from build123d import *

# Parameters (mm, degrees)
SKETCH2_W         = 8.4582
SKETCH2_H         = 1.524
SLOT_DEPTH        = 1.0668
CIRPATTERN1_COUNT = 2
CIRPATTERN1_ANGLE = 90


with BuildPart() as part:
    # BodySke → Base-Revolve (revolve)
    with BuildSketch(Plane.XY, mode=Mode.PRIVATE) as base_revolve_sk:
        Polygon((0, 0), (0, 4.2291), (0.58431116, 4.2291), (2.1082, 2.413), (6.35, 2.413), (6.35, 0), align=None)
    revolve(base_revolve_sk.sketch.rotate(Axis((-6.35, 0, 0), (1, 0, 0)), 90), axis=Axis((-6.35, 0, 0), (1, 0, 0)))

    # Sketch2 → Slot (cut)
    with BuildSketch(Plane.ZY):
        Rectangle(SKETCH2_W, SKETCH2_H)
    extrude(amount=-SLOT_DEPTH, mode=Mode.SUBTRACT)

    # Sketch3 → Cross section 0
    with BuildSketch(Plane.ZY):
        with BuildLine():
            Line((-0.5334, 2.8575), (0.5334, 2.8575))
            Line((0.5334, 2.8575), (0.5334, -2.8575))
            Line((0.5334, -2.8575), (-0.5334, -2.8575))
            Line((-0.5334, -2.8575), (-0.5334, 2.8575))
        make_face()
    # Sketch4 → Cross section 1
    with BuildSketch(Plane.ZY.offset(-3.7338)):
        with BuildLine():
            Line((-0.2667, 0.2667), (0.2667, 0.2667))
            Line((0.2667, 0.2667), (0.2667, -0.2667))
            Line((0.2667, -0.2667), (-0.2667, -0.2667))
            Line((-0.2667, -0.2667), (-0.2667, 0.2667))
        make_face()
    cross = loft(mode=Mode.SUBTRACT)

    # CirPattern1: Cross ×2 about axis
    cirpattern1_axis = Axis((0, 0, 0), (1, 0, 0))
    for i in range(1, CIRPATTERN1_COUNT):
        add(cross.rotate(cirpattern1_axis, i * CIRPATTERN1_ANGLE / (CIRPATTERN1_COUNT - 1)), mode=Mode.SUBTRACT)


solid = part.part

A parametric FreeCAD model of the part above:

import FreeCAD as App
import Part
import Sketcher
from FreeCAD import Vector
Q = App.Units.Quantity

doc = App.newDocument("Part")
body = doc.addObject("PartDesign::Body", "Body")

sketch1 = body.newObject("Sketcher::SketchObject", "Sketch")
sketch1.AttachmentSupport = (doc.getObject("XY_Plane"), [""])
sketch1.MapMode = "FlatFace"
sketch1.addGeometry(Part.LineSegment(Vector(0, 4.2, 0), Vector(0, 0, 0)), False)
sketch1.addGeometry(Part.LineSegment(Vector(0, 0, 0), Vector(6.3, 0, 0)), False)
sketch1.addGeometry(Part.LineSegment(Vector(6.3, 0, 0), Vector(6.3, 2.4, 0)), False)
sketch1.addGeometry(Part.LineSegment(Vector(6.3, 2.4, 0), Vector(2.1, 2.4, 0)), False)
sketch1.addGeometry(Part.LineSegment(Vector(2.1, 2.4, 0), Vector(0.6, 4.2, 0)), False)
sketch1.addGeometry(Part.LineSegment(Vector(0.6, 4.2, 0), Vector(0, 4.2, 0)), False)
sketch1.addConstraint(Sketcher.Constraint("Coincident", 0, 2, 1, 1))
sketch1.addConstraint(Sketcher.Constraint("Coincident", 1, 2, 2, 1))
sketch1.addConstraint(Sketcher.Constraint("Coincident", 2, 2, 3, 1))
sketch1.addConstraint(Sketcher.Constraint("Coincident", 3, 2, 4, 1))
sketch1.addConstraint(Sketcher.Constraint("Coincident", 4, 2, 5, 1))
sketch1.addConstraint(Sketcher.Constraint("Coincident", 5, 2, 0, 1))
sketch1.addConstraint(Sketcher.Constraint("Vertical", 0))
sketch1.addConstraint(Sketcher.Constraint("Horizontal", 1))
sketch1.addConstraint(Sketcher.Constraint("Vertical", 2))
sketch1.addConstraint(Sketcher.Constraint("Horizontal", 3))
sketch1.addConstraint(Sketcher.Constraint("Horizontal", 5))
sketch1.addConstraint(Sketcher.Constraint("Coincident", 0, 2, -1, 1))
sketch1.addConstraint(Sketcher.Constraint("Angle", 4, Q("130 deg")))
sketch1.addConstraint(Sketcher.Constraint("DistanceX", 1, 1, 1, 2, Q("0.25 in")))
sketch1.addConstraint(Sketcher.Constraint("DistanceX", 3, 2, 3, 1, Q("0.167 in")))
sketch1.addConstraint(Sketcher.Constraint("DistanceY", 2, 1, 2, 2, Q("0.095 in")))
sketch1.addConstraint(Sketcher.Constraint("DistanceY", 0, 2, 0, 1, Q("0.1665 in")))
revolution = body.newObject("PartDesign::Revolution", "Revolution")
revolution.Profile = sketch1
revolution.ReferenceAxis = (sketch1, ["H_Axis"])
revolution.Angle = 360

sketch2 = body.newObject("Sketcher::SketchObject", "Sketch001")
sketch2.AttachmentSupport = (doc.getObject("YZ_Plane"), [""])
sketch2.MapMode = "FlatFace"
sketch2.addGeometry(Part.LineSegment(Vector(0.8, -4.2, 0), Vector(-0.8, -4.2, 0)), False)
sketch2.addGeometry(Part.LineSegment(Vector(-0.8, -4.2, 0), Vector(-0.8, 4.2, 0)), False)
sketch2.addGeometry(Part.LineSegment(Vector(-0.8, 4.2, 0), Vector(0.8, 4.2, 0)), False)
sketch2.addGeometry(Part.LineSegment(Vector(0.8, 4.2, 0), Vector(0.8, -4.2, 0)), False)
sketch2.addConstraint(Sketcher.Constraint("Coincident", 0, 2, 1, 1))
sketch2.addConstraint(Sketcher.Constraint("Coincident", 1, 2, 2, 1))
sketch2.addConstraint(Sketcher.Constraint("Coincident", 2, 2, 3, 1))
sketch2.addConstraint(Sketcher.Constraint("Coincident", 3, 2, 0, 1))
sketch2.addConstraint(Sketcher.Constraint("Horizontal", 0))
sketch2.addConstraint(Sketcher.Constraint("Vertical", 1))
sketch2.addConstraint(Sketcher.Constraint("Horizontal", 2))
sketch2.addConstraint(Sketcher.Constraint("Vertical", 3))
sketch2.addConstraint(Sketcher.Constraint("Symmetric", 0, 2, 2, 2, -1, 1))
sketch2.addConstraint(Sketcher.Constraint("DistanceX", 0, 2, 0, 1, Q("0.06 in")))
sketch2.addConstraint(Sketcher.Constraint("DistanceY", 1, 1, 1, 2, Q("0.333 in")))
pocket1 = body.newObject("PartDesign::Pocket", "Pocket")
pocket1.Profile = sketch2
pocket1.Length = Q("0.042 in")
pocket1.Reversed = True

sketch3 = body.newObject("Sketcher::SketchObject", "Sketch002")
sketch3.AttachmentSupport = (doc.getObject("YZ_Plane"), [""])
sketch3.MapMode = "FlatFace"
sketch3.addGeometry(Part.LineSegment(Vector(2.9, 0.5, 0), Vector(2.9, -0.5, 0)), False)
sketch3.addGeometry(Part.LineSegment(Vector(2.9, -0.5, 0), Vector(-2.9, -0.5, 0)), False)
sketch3.addGeometry(Part.LineSegment(Vector(-2.9, -0.5, 0), Vector(-2.9, 0.5, 0)), False)
sketch3.addGeometry(Part.LineSegment(Vector(-2.9, 0.5, 0), Vector(2.9, 0.5, 0)), False)
sketch3.addConstraint(Sketcher.Constraint("Coincident", 0, 2, 1, 1))
sketch3.addConstraint(Sketcher.Constraint("Coincident", 1, 2, 2, 1))
sketch3.addConstraint(Sketcher.Constraint("Coincident", 2, 2, 3, 1))
sketch3.addConstraint(Sketcher.Constraint("Coincident", 3, 2, 0, 1))
sketch3.addConstraint(Sketcher.Constraint("Vertical", 0))
sketch3.addConstraint(Sketcher.Constraint("Horizontal", 1))
sketch3.addConstraint(Sketcher.Constraint("Vertical", 2))
sketch3.addConstraint(Sketcher.Constraint("Horizontal", 3))
sketch3.addConstraint(Sketcher.Constraint("Symmetric", 0, 2, 2, 2, -1, 1))
sketch3.addConstraint(Sketcher.Constraint("DistanceX", 1, 2, 1, 1, Q("0.225 in")))
sketch3.addConstraint(Sketcher.Constraint("DistanceY", 0, 2, 0, 1, Q("0.042 in")))

sketch4 = body.newObject("Sketcher::SketchObject", "Sketch003")
sketch4.AttachmentSupport = (doc.getObject("YZ_Plane"), [""])
sketch4.MapMode = "FlatFace"
sketch4.AttachmentOffset = App.Placement(Vector(0, 0, 0.147 * 25.4), App.Rotation())
sketch4.addGeometry(Part.LineSegment(Vector(0.3, 0.3, 0), Vector(0.3, -0.3, 0)), False)
sketch4.addGeometry(Part.LineSegment(Vector(0.3, -0.3, 0), Vector(-0.3, -0.3, 0)), False)
sketch4.addGeometry(Part.LineSegment(Vector(-0.3, -0.3, 0), Vector(-0.3, 0.3, 0)), False)
sketch4.addGeometry(Part.LineSegment(Vector(-0.3, 0.3, 0), Vector(0.3, 0.3, 0)), False)
sketch4.addConstraint(Sketcher.Constraint("Coincident", 0, 2, 1, 1))
sketch4.addConstraint(Sketcher.Constraint("Coincident", 1, 2, 2, 1))
sketch4.addConstraint(Sketcher.Constraint("Coincident", 2, 2, 3, 1))
sketch4.addConstraint(Sketcher.Constraint("Coincident", 3, 2, 0, 1))
sketch4.addConstraint(Sketcher.Constraint("Vertical", 0))
sketch4.addConstraint(Sketcher.Constraint("Horizontal", 1))
sketch4.addConstraint(Sketcher.Constraint("Vertical", 2))
sketch4.addConstraint(Sketcher.Constraint("Horizontal", 3))
sketch4.addConstraint(Sketcher.Constraint("Symmetric", 0, 2, 2, 2, -1, 1))
sketch4.addConstraint(Sketcher.Constraint("Equal", 3, 0))
sketch4.addConstraint(Sketcher.Constraint("DistanceX", 1, 2, 1, 1, Q("0.021 in")))

subtractiveloft = body.newObject("PartDesign::SubtractiveLoft", "SubtractiveLoft")
subtractiveloft.Profile = sketch3
subtractiveloft.Sections = [sketch4]
doc.recompute()

polarpattern = body.newObject("PartDesign::PolarPattern", "PolarPattern")
polarpattern.Originals = [subtractiveloft]
polarpattern.Axis = (doc.getObject("X_Axis"), [""])
polarpattern.Angle = 90
polarpattern.Occurrences = 2
body.Tip = polarpattern

doc.recompute()
